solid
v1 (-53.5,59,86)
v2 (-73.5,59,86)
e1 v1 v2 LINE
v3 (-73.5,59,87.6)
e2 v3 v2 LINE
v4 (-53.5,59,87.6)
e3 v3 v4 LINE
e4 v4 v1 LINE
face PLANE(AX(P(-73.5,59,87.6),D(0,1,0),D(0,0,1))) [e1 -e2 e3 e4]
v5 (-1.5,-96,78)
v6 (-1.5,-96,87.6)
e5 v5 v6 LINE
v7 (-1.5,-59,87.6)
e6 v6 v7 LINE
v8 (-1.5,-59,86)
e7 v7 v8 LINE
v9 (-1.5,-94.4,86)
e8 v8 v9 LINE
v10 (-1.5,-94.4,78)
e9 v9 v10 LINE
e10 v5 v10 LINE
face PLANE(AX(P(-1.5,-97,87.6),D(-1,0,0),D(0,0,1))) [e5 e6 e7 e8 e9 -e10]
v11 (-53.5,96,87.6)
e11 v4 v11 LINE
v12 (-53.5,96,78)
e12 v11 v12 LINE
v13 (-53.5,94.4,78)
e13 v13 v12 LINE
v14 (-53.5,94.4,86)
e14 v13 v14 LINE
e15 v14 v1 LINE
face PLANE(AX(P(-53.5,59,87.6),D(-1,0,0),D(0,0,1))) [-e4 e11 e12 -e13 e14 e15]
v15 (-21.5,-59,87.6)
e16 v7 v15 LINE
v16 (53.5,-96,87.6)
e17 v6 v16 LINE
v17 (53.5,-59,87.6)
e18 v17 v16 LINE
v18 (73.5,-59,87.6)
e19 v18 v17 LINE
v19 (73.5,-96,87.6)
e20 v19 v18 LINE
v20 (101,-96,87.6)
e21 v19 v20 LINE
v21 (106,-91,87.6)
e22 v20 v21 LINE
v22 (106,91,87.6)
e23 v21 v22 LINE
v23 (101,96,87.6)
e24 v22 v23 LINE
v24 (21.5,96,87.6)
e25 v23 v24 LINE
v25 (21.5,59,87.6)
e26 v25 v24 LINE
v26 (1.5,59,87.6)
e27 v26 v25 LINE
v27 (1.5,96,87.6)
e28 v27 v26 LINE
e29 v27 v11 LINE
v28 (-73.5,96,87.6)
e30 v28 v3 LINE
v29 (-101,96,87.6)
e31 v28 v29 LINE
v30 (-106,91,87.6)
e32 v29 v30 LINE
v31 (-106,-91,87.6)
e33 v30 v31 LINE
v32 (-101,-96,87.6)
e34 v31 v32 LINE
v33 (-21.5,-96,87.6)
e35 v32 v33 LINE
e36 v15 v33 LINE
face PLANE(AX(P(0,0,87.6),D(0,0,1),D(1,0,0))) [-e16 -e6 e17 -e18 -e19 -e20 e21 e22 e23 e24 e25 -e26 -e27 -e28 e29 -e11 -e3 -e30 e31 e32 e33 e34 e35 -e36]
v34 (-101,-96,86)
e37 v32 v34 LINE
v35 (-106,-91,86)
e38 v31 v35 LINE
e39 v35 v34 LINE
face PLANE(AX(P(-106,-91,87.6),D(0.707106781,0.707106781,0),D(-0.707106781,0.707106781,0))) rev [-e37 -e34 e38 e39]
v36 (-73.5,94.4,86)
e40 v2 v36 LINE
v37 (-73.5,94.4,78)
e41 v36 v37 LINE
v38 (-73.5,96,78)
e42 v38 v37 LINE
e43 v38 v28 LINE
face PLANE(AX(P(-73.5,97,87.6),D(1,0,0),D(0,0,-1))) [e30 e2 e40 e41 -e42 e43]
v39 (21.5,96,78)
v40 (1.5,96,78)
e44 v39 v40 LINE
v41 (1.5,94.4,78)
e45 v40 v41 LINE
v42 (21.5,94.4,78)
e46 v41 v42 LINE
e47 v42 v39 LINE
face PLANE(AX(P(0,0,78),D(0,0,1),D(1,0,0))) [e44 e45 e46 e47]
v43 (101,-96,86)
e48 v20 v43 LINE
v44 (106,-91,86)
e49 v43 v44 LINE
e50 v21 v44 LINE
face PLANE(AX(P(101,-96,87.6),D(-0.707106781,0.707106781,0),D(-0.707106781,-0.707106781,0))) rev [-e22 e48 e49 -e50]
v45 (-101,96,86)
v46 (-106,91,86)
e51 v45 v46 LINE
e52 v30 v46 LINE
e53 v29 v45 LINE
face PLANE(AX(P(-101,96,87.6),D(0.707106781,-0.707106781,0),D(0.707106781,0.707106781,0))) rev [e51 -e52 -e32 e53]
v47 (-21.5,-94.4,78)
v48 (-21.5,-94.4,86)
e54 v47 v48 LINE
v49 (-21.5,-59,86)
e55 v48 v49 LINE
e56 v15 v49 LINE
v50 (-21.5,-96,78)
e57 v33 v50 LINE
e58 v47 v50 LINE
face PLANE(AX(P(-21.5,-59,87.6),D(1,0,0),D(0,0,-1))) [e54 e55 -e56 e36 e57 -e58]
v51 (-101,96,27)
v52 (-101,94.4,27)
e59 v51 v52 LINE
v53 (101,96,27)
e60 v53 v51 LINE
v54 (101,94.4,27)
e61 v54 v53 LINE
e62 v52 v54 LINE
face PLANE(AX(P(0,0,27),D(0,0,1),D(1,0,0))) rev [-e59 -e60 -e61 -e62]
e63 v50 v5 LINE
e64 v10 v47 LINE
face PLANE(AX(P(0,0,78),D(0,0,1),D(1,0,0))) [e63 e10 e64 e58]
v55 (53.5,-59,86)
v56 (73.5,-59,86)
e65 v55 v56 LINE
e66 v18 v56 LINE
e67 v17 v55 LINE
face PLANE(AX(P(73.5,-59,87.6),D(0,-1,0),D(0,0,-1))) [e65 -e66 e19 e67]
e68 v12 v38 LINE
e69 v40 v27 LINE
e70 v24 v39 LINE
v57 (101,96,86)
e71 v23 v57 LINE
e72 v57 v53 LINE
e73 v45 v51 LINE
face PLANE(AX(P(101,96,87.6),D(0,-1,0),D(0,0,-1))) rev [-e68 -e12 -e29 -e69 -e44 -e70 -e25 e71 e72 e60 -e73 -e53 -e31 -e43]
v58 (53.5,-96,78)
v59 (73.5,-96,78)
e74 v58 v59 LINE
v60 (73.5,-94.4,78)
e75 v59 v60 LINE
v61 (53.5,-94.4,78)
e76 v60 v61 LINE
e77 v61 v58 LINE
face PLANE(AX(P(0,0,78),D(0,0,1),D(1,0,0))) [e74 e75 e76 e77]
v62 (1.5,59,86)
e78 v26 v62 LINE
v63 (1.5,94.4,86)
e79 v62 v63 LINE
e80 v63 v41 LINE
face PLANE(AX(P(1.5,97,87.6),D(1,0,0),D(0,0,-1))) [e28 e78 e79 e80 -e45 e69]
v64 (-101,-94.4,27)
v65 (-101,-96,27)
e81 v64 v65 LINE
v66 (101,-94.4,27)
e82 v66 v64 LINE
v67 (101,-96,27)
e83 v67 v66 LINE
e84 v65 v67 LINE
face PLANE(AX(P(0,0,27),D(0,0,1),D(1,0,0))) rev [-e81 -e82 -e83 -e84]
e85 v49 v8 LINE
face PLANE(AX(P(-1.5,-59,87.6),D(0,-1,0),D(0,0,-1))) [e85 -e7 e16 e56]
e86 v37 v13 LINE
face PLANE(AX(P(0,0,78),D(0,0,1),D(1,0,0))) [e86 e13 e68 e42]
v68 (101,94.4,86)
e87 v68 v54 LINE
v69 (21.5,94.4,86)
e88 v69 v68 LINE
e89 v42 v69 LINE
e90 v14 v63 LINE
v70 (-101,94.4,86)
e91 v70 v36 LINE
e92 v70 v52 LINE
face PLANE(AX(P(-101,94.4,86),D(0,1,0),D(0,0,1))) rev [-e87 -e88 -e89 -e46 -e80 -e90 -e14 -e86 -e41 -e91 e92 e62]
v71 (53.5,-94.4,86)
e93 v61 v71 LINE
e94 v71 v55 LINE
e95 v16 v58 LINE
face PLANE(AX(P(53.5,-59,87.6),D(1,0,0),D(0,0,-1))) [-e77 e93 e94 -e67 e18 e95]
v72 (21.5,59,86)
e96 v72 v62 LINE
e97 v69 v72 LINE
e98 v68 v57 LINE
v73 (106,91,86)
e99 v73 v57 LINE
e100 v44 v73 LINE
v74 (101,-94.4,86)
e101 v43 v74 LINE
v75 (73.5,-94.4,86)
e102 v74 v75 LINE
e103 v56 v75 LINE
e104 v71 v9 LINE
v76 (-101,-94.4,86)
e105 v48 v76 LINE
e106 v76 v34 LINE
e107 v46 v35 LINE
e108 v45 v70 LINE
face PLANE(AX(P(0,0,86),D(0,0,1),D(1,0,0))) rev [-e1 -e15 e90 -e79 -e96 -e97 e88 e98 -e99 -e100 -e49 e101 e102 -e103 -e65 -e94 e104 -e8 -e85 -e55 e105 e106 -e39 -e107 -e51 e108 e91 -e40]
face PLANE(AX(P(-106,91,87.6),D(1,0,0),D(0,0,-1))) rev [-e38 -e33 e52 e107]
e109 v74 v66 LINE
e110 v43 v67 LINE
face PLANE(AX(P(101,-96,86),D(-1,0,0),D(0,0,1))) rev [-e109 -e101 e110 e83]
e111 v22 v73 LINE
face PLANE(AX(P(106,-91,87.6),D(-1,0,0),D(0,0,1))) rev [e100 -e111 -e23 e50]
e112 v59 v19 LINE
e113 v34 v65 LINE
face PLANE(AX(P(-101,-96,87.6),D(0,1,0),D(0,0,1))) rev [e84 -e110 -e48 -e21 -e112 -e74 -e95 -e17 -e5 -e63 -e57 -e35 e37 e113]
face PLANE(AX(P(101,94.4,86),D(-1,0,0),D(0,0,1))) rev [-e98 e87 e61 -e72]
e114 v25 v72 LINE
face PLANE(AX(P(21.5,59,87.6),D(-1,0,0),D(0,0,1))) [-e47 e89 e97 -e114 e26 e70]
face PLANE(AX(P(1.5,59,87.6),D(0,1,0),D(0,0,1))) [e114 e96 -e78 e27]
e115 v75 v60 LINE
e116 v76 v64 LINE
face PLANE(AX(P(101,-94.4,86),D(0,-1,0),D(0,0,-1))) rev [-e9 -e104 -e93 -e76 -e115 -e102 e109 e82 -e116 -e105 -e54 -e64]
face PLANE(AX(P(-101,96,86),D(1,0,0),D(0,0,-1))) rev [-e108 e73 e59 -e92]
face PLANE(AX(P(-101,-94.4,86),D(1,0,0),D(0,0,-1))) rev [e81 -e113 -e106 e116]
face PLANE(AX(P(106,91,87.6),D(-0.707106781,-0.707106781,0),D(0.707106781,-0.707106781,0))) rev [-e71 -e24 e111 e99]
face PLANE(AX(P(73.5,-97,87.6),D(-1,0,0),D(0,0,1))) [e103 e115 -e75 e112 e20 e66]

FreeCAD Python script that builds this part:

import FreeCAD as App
import Part
import Sketcher

V = App.Vector
Q = App.Units.Quantity

doc = App.newDocument("Part")
params = doc.addObject("Spreadsheet::Sheet", "Params")
for row, (alias, value) in enumerate([
    ("sketch1_width", "202 mm"),
    ("sketch1_height", "182 mm"),
    ("pad1_length", "1.6 mm"),
    ("sketch2_width", "202 mm"),
    ("sketch2_height", "1.6 mm"),
    ("pad2_length", "59 mm"),
    ("sketch3_width", "20 mm"),
    ("sketch3_height", "38 mm"),
    ("pocket1_length", "9.6 mm"),
], start=1):
    params.set(f"A{row}", alias)
    params.set(f"B{row}", "=" + value)
    params.setAlias(f"B{row}", alias)

body = doc.addObject("PartDesign::Body", "Body")

sketch1 = body.newObject("Sketcher::SketchObject", "Sketch")
sketch1.AttachmentSupport = (doc.getObject("XY_Plane"), [""])
sketch1.MapMode = "FlatFace"
sketch1.AttachmentOffset = App.Placement(V(0, 0, 86), App.Rotation())
sketch1.addGeometry(Part.LineSegment(V(-101, -96, 0), V(101, -96, 0)), False)
sketch1.addGeometry(Part.LineSegment(V(101, -96, 0), V(106, -91, 0)), False)
sketch1.addGeometry(Part.LineSegment(V(106, -91, 0), V(106, 91, 0)), False)
sketch1.addGeometry(Part.LineSegment(V(106, 91, 0), V(101, 96, 0)), False)
sketch1.addGeometry(Part.LineSegment(V(101, 96, 0), V(-101, 96, 0)), False)
sketch1.addGeometry(Part.LineSegment(V(-101, 96, 0), V(-106, 91, 0)), False)
sketch1.addGeometry(Part.LineSegment(V(-106, 91, 0), V(-106, -91, 0)), False)
sketch1.addGeometry(Part.LineSegment(V(-106, -91, 0), V(-101, -96, 0)), False)
sketch1.addConstraint(Sketcher.Constraint("Coincident", 0, 2, 1, 1))
sketch1.addConstraint(Sketcher.Constraint("Coincident", 1, 2, 2, 1))
sketch1.addConstraint(Sketcher.Constraint("Coincident", 2, 2, 3, 1))
sketch1.addConstraint(Sketcher.Constraint("Coincident", 3, 2, 4, 1))
sketch1.addConstraint(Sketcher.Constraint("Coincident", 4, 2, 5, 1))
sketch1.addConstraint(Sketcher.Constraint("Coincident", 5, 2, 6, 1))
sketch1.addConstraint(Sketcher.Constraint("Coincident", 6, 2, 7, 1))
sketch1.addConstraint(Sketcher.Constraint("Coincident", 7, 2, 0, 1))
sketch1.addConstraint(Sketcher.Constraint("Horizontal", 0))
sketch1.addConstraint(Sketcher.Constraint("Vertical", 2))
sketch1.addConstraint(Sketcher.Constraint("Horizontal", 4))
sketch1.addConstraint(Sketcher.Constraint("Vertical", 6))
sketch1.addConstraint(Sketcher.Constraint("Symmetric", 0, 2, 4, 2, -1, 1))
sketch1.addConstraint(Sketcher.Constraint("Symmetric", 1, 2, 5, 2, -1, 1))
sketch1.addConstraint(Sketcher.Constraint("Perpendicular", 1, 3))
sketch1.addConstraint(Sketcher.Constraint("Perpendicular", 5, 7))
sketch1.addConstraint(Sketcher.Constraint("Horizontal", 2, 2, 5, 2))
sketch1.addConstraint(Sketcher.Constraint("Horizontal", 1, 2, 6, 2))
sketch1.addConstraint(Sketcher.Constraint("Vertical", 0, 2, 3, 2))
sketch1.addConstraint(Sketcher.Constraint("DistanceX", 0, 1, 0, 2, Q("202 mm")))
sketch1.addConstraint(Sketcher.Constraint("DistanceY", 2, 1, 2, 2, Q("182 mm")))
sketch1.addConstraint(Sketcher.Constraint("DistanceY", 0, 2, -1, 1, Q("96 mm")))
sketch1.setExpression("Constraints[19]", "Params.sketch1_width")
sketch1.setExpression("Constraints[20]", "Params.sketch1_height")
pad1 = body.newObject("PartDesign::Pad", "Pad")
pad1.Profile = sketch1
pad1.setExpression("Length", "Params.pad1_length")

sketch2 = body.newObject("Sketcher::SketchObject", "Sketch001")
sketch2.AttachmentSupport = (doc.getObject("XY_Plane"), [""])
sketch2.MapMode = "FlatFace"
sketch2.AttachmentOffset = App.Placement(V(0, 0, 27), App.Rotation())
sketch2.addGeometry(Part.LineSegment(V(-101, 96, 0), V(-101, 94.4, 0)), False)
sketch2.addGeometry(Part.LineSegment(V(-101, 94.4, 0), V(101, 94.4, 0)), False)
sketch2.addGeometry(Part.LineSegment(V(101, 94.4, 0), V(101, 96, 0)), False)
sketch2.addGeometry(Part.LineSegment(V(101, 96, 0), V(-101, 96, 0)), False)
sketch2.addGeometry(Part.LineSegment(V(-101, -94.4, 0), V(-101, -96, 0)), False)
sketch2.addGeometry(Part.LineSegment(V(-101, -96, 0), V(101, -96, 0)), False)
sketch2.addGeometry(Part.LineSegment(V(101, -96, 0), V(101, -94.4, 0)), False)
sketch2.addGeometry(Part.LineSegment(V(101, -94.4, 0), V(-101, -94.4, 0)), False)
sketch2.addConstraint(Sketcher.Constraint("Coincident", 0, 2, 1, 1))
sketch2.addConstraint(Sketcher.Constraint("Coincident", 1, 2, 2, 1))
sketch2.addConstraint(Sketcher.Constraint("Coincident", 2, 2, 3, 1))
sketch2.addConstraint(Sketcher.Constraint("Coincident", 3, 2, 0, 1))
sketch2.addConstraint(Sketcher.Constraint("Coincident", 4, 2, 5, 1))
sketch2.addConstraint(Sketcher.Constraint("Coincident", 5, 2, 6, 1))
sketch2.addConstraint(Sketcher.Constraint("Coincident", 6, 2, 7, 1))
sketch2.addConstraint(Sketcher.Constraint("Coincident", 7, 2, 4, 1))
sketch2.addConstraint(Sketcher.Constraint("Vertical", 0))
sketch2.addConstraint(Sketcher.Constraint("Horizontal", 1))
sketch2.addConstraint(Sketcher.Constraint("Vertical", 2))
sketch2.addConstraint(Sketcher.Constraint("Horizontal", 3))
sketch2.addConstraint(Sketcher.Constraint("Vertical", 4))
sketch2.addConstraint(Sketcher.Constraint("Horizontal", 5))
sketch2.addConstraint(Sketcher.Constraint("Vertical", 6))
sketch2.addConstraint(Sketcher.Constraint("Horizontal", 7))
sketch2.addConstraint(Sketcher.Constraint("Symmetric", 2, 2, 4, 2, -1, 1))
sketch2.addConstraint(Sketcher.Constraint("Symmetric", 0, 2, 6, 2, -1, 1))
sketch2.addConstraint(Sketcher.Constraint("Vertical", 3, 2, 4, 2))
sketch2.addConstraint(Sketcher.Constraint("DistanceX", 1, 1, 1, 2, Q("202 mm")))
sketch2.addConstraint(Sketcher.Constraint("DistanceY", 0, 2, 0, 1, Q("1.6 mm")))
sketch2.addConstraint(Sketcher.Constraint("DistanceY", -1, 1, 2, 2, Q("96 mm")))
sketch2.setExpression("Constraints[19]", "Params.sketch2_width")
sketch2.setExpression("Constraints[20]", "Params.sketch2_height")
pad2 = body.newObject("PartDesign::Pad", "Pad001")
pad2.Profile = sketch2
pad2.setExpression("Length", "Params.pad2_length")

sketch3 = body.newObject("Sketcher::SketchObject", "Sketch002")
sketch3.AttachmentSupport = (doc.getObject("XY_Plane"), [""])
sketch3.MapMode = "FlatFace"
sketch3.AttachmentOffset = App.Placement(V(0, 0, 78), App.Rotation())
sketch3.addGeometry(Part.LineSegment(V(-74, 97, 0), V(-74, 59, 0)), False)
sketch3.addGeometry(Part.LineSegment(V(-74, 59, 0), V(-54, 59, 0)), False)
sketch3.addGeometry(Part.LineSegment(V(-54, 59, 0), V(-54, 97, 0)), False)
sketch3.addGeometry(Part.LineSegment(V(-54, 97, 0), V(-74, 97, 0)), False)
sketch3.addGeometry(Part.LineSegment(V(54, -59, 0), V(54, -97, 0)), False)
sketch3.addGeometry(Part.LineSegment(V(54, -97, 0), V(74, -97, 0)), False)
sketch3.addGeometry(Part.LineSegment(V(74, -97, 0), V(74, -59, 0)), False)
sketch3.addGeometry(Part.LineSegment(V(74, -59, 0), V(54, -59, 0)), False)
sketch3.addGeometry(Part.LineSegment(V(2, 97, 0), V(2, 59, 0)), False)
sketch3.addGeometry(Part.LineSegment(V(2, 59, 0), V(22, 59, 0)), False)
sketch3.addGeometry(Part.LineSegment(V(22, 59, 0), V(22, 97, 0)), False)
sketch3.addGeometry(Part.LineSegment(V(22, 97, 0), V(2, 97, 0)), False)
sketch3.addGeometry(Part.LineSegment(V(-22, -59, 0), V(-22, -97, 0)), False)
sketch3.addGeometry(Part.LineSegment(V(-22, -97, 0), V(-2, -97, 0)), False)
sketch3.addGeometry(Part.LineSegment(V(-2, -97, 0), V(-2, -59, 0)), False)
sketch3.addGeometry(Part.LineSegment(V(-2, -59, 0), V(-22, -59, 0)), False)
sketch3.addConstraint(Sketcher.Constraint("Coincident", 0, 2, 1, 1))
sketch3.addConstraint(Sketcher.Constraint("Coincident", 1, 2, 2, 1))
sketch3.addConstraint(Sketcher.Constraint("Coincident", 2, 2, 3, 1))
sketch3.addConstraint(Sketcher.Constraint("Coincident", 3, 2, 0, 1))
sketch3.addConstraint(Sketcher.Constraint("Coincident", 4, 2, 5, 1))
sketch3.addConstraint(Sketcher.Constraint("Coincident", 5, 2, 6, 1))
sketch3.addConstraint(Sketcher.Constraint("Coincident", 6, 2, 7, 1))
sketch3.addConstraint(Sketcher.Constraint("Coincident", 7, 2, 4, 1))
sketch3.addConstraint(Sketcher.Constraint("Coincident", 8, 2, 9, 1))
sketch3.addConstraint(Sketcher.Constraint("Coincident", 9, 2, 10, 1))
sketch3.addConstraint(Sketcher.Constraint("Coincident", 10, 2, 11, 1))
sketch3.addConstraint(Sketcher.Constraint("Coincident", 11, 2, 8, 1))
sketch3.addConstraint(Sketcher.Constraint("Coincident", 12, 2, 13, 1))
sketch3.addConstraint(Sketcher.Constraint("Coincident", 13, 2, 14, 1))
sketch3.addConstraint(Sketcher.Constraint("Coincident", 14, 2, 15, 1))
sketch3.addConstraint(Sketcher.Constraint("Coincident", 15, 2, 12, 1))
sketch3.addConstraint(Sketcher.Constraint("Vertical", 0))
sketch3.addConstraint(Sketcher.Constraint("Horizontal", 1))
sketch3.addConstraint(Sketcher.Constraint("Vertical", 2))
sketch3.addConstraint(Sketcher.Constraint("Horizontal", 3))
sketch3.addConstraint(Sketcher.Constraint("Vertical", 4))
sketch3.addConstraint(Sketcher.Constraint("Horizontal", 5))
sketch3.addConstraint(Sketcher.Constraint("Vertical", 6))
sketch3.addConstraint(Sketcher.Constraint("Horizontal", 7))
sketch3.addConstraint(Sketcher.Constraint("Vertical", 8))
sketch3.addConstraint(Sketcher.Constraint("Horizontal", 9))
sketch3.addConstraint(Sketcher.Constraint("Vertical", 10))
sketch3.addConstraint(Sketcher.Constraint("Horizontal", 11))
sketch3.addConstraint(Sketcher.Constraint("Vertical", 12))
sketch3.addConstraint(Sketcher.Constraint("Horizontal", 13))
sketch3.addConstraint(Sketcher.Constraint("Vertical", 14))
sketch3.addConstraint(Sketcher.Constraint("Horizontal", 15))
sketch3.addConstraint(Sketcher.Constraint("Symmetric", 2, 2, 4, 2, -1, 1))
sketch3.addConstraint(Sketcher.Constraint("Symmetric", 0, 2, 6, 2, -1, 1))
sketch3.addConstraint(Sketcher.Constraint("Symmetric", 10, 2, 12, 2, -1, 1))
sketch3.addConstraint(Sketcher.Constraint("Symmetric", 8, 2, 14, 2, -1, 1))
sketch3.addConstraint(Sketcher.Constraint("Horizontal", 1, 2, 8, 2))
sketch3.addConstraint(Sketcher.Constraint("Horizontal", 3, 2, 10, 2))
sketch3.addConstraint(Sketcher.Constraint("Equal", 7, 9))
sketch3.addConstraint(Sketcher.Constraint("DistanceX", 1, 1, 1, 2, Q("20 mm")))
sketch3.addConstraint(Sketcher.Constraint("DistanceY", 0, 2, 0, 1, Q("38 mm")))
sketch3.addConstraint(Sketcher.Constraint("DistanceY", -1, 1, 0, 2, Q("59 mm")))
sketch3.addConstraint(Sketcher.Constraint("DistanceX", 1, 2, 4, 2, Q("107 mm")))
sketch3.addConstraint(Sketcher.Constraint("DistanceX", 1, 2, 8, 2, Q("55 mm")))
sketch3.setExpression("Constraints[39]", "Params.sketch3_width")
sketch3.setExpression("Constraints[40]", "Params.sketch3_height")
pocket1 = body.newObject("PartDesign::Pocket", "Pocket")
pocket1.Profile = sketch3
pocket1.setExpression("Length", "Params.pocket1_length")
pocket1.Reversed = True

doc.recompute()
